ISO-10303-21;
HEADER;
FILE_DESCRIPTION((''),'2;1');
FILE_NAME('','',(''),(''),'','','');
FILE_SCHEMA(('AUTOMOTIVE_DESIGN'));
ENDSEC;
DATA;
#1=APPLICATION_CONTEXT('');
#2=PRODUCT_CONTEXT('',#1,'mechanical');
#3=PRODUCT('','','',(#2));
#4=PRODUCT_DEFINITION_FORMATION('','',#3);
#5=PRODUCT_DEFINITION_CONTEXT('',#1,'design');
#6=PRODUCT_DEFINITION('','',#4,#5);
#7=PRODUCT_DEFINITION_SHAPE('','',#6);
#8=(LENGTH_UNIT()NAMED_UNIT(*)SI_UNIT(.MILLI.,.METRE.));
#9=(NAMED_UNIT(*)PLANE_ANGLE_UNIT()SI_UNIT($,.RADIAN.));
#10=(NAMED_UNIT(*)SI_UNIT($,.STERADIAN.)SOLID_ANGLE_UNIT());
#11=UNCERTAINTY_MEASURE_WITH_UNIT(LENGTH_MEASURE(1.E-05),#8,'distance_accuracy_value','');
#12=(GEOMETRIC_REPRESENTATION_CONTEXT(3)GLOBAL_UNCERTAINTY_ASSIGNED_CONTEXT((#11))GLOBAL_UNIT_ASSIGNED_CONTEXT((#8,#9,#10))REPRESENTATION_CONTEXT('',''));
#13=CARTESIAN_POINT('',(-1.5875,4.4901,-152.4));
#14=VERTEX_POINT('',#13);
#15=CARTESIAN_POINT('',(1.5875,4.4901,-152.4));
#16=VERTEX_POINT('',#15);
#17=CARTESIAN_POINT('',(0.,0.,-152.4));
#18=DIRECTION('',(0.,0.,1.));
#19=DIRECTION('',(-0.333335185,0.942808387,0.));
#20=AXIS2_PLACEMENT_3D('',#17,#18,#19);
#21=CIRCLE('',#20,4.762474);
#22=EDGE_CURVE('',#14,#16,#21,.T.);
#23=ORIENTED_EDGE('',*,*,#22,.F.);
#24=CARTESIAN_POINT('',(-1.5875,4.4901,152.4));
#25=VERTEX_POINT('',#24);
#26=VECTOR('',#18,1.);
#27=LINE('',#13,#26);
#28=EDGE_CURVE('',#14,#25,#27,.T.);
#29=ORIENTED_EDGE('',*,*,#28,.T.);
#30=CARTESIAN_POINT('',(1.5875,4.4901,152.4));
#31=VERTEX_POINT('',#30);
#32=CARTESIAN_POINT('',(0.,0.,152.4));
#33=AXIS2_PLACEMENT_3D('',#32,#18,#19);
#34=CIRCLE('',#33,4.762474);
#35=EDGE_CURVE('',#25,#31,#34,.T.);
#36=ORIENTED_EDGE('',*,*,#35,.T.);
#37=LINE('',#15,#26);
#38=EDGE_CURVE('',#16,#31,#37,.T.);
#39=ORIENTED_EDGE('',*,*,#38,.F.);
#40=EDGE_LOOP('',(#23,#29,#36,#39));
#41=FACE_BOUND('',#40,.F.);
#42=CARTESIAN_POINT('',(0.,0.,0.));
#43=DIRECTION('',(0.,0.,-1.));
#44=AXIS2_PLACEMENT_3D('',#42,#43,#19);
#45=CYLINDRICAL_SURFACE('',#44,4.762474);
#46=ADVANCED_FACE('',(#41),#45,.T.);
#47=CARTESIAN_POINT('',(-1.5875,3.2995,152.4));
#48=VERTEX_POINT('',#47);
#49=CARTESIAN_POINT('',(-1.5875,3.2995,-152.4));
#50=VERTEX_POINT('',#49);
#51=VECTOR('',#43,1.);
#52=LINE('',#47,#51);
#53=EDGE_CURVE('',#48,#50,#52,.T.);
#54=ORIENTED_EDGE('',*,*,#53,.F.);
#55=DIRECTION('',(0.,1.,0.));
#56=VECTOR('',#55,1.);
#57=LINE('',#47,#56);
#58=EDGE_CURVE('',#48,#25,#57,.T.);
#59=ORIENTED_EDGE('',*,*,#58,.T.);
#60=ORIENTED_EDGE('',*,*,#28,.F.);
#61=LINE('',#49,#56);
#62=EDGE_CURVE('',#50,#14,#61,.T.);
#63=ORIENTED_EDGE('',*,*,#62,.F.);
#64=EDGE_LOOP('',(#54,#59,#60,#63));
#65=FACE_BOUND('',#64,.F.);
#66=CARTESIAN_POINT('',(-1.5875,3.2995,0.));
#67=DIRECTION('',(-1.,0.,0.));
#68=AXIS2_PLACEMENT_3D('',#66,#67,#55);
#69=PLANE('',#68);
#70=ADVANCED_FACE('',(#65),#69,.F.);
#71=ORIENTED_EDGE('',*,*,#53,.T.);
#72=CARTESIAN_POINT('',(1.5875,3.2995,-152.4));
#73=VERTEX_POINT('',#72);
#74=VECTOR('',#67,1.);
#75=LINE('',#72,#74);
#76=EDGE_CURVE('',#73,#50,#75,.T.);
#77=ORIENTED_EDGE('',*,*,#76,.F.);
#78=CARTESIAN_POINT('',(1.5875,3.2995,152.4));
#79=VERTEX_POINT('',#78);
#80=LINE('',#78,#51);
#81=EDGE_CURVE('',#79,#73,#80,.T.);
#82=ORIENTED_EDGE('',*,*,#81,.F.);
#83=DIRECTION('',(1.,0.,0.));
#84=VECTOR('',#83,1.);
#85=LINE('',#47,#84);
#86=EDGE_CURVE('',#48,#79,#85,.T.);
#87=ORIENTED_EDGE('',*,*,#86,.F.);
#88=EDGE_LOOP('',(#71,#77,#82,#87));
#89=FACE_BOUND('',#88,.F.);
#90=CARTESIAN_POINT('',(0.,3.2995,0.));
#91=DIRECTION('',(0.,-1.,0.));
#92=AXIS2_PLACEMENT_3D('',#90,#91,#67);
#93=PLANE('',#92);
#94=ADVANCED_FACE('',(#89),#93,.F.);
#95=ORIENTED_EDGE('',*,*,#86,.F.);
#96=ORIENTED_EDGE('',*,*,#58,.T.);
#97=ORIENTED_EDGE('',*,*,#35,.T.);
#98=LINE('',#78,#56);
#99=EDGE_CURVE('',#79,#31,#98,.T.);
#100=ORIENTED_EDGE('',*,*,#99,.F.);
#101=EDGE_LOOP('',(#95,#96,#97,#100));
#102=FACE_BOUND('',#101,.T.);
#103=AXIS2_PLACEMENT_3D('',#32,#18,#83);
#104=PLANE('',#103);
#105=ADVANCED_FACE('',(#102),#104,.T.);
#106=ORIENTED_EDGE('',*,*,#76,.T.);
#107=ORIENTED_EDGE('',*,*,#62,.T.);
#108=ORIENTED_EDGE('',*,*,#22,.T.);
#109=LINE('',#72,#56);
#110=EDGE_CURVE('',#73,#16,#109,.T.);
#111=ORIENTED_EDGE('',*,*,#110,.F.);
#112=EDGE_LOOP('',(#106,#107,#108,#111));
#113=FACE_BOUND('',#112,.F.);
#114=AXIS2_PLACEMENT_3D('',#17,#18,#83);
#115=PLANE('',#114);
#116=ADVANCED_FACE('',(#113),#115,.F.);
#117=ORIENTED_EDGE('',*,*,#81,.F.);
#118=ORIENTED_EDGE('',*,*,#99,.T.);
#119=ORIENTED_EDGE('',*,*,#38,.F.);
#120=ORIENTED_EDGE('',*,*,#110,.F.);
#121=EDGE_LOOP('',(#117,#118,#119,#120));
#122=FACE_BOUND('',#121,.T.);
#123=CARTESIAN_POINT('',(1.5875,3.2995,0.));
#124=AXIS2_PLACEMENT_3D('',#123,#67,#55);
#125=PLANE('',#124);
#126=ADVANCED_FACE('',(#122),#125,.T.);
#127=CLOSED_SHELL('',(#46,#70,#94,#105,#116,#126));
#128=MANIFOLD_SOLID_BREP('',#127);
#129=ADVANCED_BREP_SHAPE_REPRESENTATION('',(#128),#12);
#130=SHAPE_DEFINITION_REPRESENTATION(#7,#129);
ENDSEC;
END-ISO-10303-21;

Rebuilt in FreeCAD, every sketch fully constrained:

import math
import FreeCAD as App
import Part
import Sketcher
Q = App.Units.Quantity

doc = App.newDocument("Part")
params = doc.addObject("Spreadsheet::Sheet", "Params")
for row, (alias, value) in enumerate([
    ("sketch1_radius", "0.1875 in"),
    ("sketch1_height", "0.046874 in"),
    ("pad1_length", "12 in"),
], start=1):
    params.set(f"A{row}", alias)
    params.set(f"B{row}", "=" + value)
    params.setAlias(f"B{row}", alias)

body = doc.addObject("PartDesign::Body", "Body")

sketch1 = body.newObject("Sketcher::SketchObject", "Sketch")
sketch1.AttachmentSupport = (doc.getObject("XY_Plane"), [""])
sketch1.MapMode = "FlatFace"
sketch1.addGeometry([
    Part.LineSegment(App.Vector(-1.5875, 3.2995, 0), App.Vector(-1.5875, 4.4901, 0)),
    Part.ArcOfCircle(Part.Circle(App.Vector(0, 0, 0), App.Vector(0, 0, 1), 4.762474), math.radians(109.471333), math.radians(430.528667)),
    Part.LineSegment(App.Vector(1.5875, 4.4901, 0), App.Vector(1.5875, 3.2995, 0)),
    Part.LineSegment(App.Vector(1.5875, 3.2995, 0), App.Vector(-1.5875, 3.2995, 0)),
], False)
sketch1.addConstraint([
    Sketcher.Constraint("Coincident", 0, 2, 1, 1),
    Sketcher.Constraint("Coincident", 1, 2, 2, 1),
    Sketcher.Constraint("Coincident", 2, 2, 3, 1),
    Sketcher.Constraint("Coincident", 3, 2, 0, 1),
    Sketcher.Constraint("Vertical", 0),
    Sketcher.Constraint("Vertical", 2),
    Sketcher.Constraint("Horizontal", 3),
    Sketcher.Constraint("Coincident", 1, 3, -1, 1),
    Sketcher.Constraint("Horizontal", 0, 2, 1, 2),
    Sketcher.Constraint("Radius", 1, Q("0.1875 in")),
    Sketcher.Constraint("DistanceY", 0, 1, 0, 2, Q("0.046874 in")),
    Sketcher.Constraint("DistanceX", 0, 2, -1, 1, Q("0.0625 in")),
])
sketch1.setExpression("Constraints[9]", "Params.sketch1_radius")
sketch1.setExpression("Constraints[10]", "Params.sketch1_height")
pad1 = body.newObject("PartDesign::Pad", "Pad")
pad1.Profile = sketch1
pad1.setExpression("Length", "Params.pad1_length")
pad1.Midplane = True

doc.recompute()
